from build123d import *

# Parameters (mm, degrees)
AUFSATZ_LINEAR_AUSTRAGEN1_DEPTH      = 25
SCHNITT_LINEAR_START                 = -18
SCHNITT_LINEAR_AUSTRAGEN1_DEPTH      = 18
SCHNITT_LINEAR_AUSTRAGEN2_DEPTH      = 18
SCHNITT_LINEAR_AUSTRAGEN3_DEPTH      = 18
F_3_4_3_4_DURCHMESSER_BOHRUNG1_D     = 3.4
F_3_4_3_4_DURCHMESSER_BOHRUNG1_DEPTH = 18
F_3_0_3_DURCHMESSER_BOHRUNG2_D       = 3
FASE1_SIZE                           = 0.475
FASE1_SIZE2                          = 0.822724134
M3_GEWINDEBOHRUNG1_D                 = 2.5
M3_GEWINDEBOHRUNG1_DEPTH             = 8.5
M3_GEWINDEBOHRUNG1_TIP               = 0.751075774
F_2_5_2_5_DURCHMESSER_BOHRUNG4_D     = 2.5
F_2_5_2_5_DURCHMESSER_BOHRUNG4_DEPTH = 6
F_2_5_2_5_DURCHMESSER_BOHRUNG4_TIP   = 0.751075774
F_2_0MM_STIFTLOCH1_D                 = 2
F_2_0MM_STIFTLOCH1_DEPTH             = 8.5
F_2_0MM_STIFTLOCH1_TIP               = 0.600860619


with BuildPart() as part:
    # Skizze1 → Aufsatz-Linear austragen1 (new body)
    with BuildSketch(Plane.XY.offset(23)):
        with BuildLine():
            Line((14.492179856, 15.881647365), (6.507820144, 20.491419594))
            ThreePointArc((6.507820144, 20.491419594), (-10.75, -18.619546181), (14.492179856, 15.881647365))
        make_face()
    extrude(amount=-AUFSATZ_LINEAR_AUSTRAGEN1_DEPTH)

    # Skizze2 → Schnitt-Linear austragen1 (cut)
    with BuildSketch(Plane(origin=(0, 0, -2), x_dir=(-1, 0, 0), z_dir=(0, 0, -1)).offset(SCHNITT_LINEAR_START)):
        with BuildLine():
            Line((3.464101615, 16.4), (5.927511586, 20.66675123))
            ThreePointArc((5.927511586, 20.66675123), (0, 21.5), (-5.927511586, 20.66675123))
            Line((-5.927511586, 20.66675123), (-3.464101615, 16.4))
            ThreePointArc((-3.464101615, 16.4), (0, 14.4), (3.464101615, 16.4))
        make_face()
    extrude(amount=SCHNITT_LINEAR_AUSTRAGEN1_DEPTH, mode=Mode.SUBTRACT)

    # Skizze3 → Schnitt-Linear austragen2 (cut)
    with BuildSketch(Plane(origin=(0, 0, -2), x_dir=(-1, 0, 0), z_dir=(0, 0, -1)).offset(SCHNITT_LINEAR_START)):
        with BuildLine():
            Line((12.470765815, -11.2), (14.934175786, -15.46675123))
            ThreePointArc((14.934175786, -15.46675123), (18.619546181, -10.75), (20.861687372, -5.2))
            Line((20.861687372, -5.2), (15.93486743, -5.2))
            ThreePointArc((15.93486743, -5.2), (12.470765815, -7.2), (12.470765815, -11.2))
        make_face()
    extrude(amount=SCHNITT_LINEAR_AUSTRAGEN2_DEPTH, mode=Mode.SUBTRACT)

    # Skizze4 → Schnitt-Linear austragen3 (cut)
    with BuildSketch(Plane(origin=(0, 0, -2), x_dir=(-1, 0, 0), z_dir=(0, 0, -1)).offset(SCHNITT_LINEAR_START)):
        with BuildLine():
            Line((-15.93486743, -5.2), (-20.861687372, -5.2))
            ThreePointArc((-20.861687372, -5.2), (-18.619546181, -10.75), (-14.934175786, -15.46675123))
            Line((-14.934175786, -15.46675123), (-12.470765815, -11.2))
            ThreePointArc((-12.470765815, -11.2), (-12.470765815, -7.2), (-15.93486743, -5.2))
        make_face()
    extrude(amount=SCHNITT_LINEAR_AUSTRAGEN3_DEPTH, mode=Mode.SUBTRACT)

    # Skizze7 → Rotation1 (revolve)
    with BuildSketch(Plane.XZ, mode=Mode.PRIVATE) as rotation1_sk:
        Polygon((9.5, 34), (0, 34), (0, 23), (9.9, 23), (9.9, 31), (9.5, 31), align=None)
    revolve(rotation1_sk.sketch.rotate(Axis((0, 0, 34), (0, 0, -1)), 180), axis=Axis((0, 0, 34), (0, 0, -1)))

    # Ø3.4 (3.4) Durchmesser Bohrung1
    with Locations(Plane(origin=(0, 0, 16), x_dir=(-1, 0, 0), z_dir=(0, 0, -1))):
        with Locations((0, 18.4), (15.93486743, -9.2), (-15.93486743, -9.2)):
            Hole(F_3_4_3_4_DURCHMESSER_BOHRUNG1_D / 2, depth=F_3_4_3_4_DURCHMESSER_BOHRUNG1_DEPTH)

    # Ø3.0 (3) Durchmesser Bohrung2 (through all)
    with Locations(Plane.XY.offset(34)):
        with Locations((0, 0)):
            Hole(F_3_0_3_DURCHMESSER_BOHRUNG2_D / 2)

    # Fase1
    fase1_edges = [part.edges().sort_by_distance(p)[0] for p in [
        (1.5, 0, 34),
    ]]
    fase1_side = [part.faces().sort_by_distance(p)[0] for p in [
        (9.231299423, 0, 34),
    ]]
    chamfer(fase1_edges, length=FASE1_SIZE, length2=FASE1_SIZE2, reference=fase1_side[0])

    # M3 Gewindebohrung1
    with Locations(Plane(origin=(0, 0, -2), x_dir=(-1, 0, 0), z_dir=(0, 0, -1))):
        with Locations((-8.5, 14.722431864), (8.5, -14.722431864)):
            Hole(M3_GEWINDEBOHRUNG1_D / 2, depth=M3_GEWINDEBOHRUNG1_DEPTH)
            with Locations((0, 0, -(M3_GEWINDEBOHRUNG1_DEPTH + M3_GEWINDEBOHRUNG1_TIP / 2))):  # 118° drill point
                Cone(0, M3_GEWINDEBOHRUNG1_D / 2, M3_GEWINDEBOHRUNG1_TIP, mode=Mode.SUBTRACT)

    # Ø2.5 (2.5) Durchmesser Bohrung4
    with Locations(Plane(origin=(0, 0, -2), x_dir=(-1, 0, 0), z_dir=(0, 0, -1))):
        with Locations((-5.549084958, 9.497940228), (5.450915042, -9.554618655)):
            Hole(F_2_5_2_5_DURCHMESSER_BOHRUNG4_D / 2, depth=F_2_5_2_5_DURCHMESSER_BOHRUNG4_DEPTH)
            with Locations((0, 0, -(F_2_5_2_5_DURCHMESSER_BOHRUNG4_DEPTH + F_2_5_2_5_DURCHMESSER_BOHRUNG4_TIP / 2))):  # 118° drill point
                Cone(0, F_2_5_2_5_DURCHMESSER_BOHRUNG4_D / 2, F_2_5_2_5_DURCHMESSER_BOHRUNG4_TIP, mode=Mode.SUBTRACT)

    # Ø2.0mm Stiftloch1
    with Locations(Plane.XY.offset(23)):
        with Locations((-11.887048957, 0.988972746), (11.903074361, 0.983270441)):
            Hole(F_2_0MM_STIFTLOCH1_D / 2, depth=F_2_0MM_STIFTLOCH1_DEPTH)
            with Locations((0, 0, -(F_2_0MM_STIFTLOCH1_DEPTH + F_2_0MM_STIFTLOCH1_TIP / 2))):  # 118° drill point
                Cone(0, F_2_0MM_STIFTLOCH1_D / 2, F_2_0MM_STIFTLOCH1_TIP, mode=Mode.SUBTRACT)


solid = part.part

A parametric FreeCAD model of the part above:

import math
import FreeCAD as App
import Part
import Sketcher

V = App.Vector
Q = App.Units.Quantity


def edges_at(feature, points):
    """Names of the edges that pass closest to the given points."""
    edges = feature.Shape.Edges
    near = lambda p: min(range(len(edges)), key=lambda i: edges[i].distToShape(Part.Vertex(*p))[0])
    return sorted({f"Edge{near(p) + 1}" for p in points})

doc = App.newDocument("Part")
body = doc.addObject("PartDesign::Body", "Body")

sketch1 = doc.addObject("Sketcher::SketchObject", "Sketch")
body.addObject(sketch1)
sketch1.AttachmentSupport = (doc.XY_Plane, [""])
sketch1.MapMode = "FlatFace"
sketch1.AttachmentOffset = App.Placement(V(0, 0, 23), App.Rotation())
sketch1.addGeometry([
    Part.LineSegment(V(14, 16, 0), V(7, 20, 0)),
    Part.ArcOfCircle(Part.Circle(V(0, 0, 0), V(0, 0, 1), 22), math.radians(72), math.radians(408)),
], False)
sketch1.addConstraint([
    Sketcher.Constraint("Coincident", 0, 1, 1, 2),
    Sketcher.Constraint("Coincident", 1, 1, 0, 2),
    Sketcher.Constraint("Coincident", 1, 3, -1, 1),
    Sketcher.Constraint("Radius", 1, Q("21.5 mm")),
    Sketcher.Constraint("Angle", 0, Q("150 deg")),
    Sketcher.Constraint("DistanceX", -1, 1, 0, 1, Q("14.49218 mm")),
])
pad1 = doc.addObject("PartDesign::Pad", "Pad")
body.addObject(pad1)
pad1.Profile = sketch1
pad1.Length = 25
pad1.Reversed = True

sketch2 = doc.addObject("Sketcher::SketchObject", "Sketch001")
body.addObject(sketch2)
sketch2.AttachmentSupport = (doc.XY_Plane, [""])
sketch2.MapMode = "FlatFace"
sketch2.AttachmentOffset = App.Placement(V(0, 0, 16), App.Rotation())
sketch2.addGeometry([
    Part.LineSegment(V(-3.5, 16.4, 0), V(-5.9, 20.7, 0)),
    Part.ArcOfCircle(Part.Circle(V(0, 0, 0), V(0, 0, 1), 21.5), math.radians(74), math.radians(106)),
    Part.LineSegment(V(5.9, 20.7, 0), V(3.5, 16.4, 0)),
    Part.ArcOfCircle(Part.Circle(V(0, 18.4, 0), V(0, 0, 1), 4), math.radians(-150), math.radians(-30)),
], False)
sketch2.addConstraint([
    Sketcher.Constraint("Coincident", 0, 2, 1, 2),
    Sketcher.Constraint("Coincident", 1, 1, 2, 1),
    Sketcher.Constraint("Tangent", 2, 2, 3, 2),
    Sketcher.Constraint("Tangent", 3, 1, 0, 1),
    Sketcher.Constraint("Coincident", 1, 3, -1, 1),
    Sketcher.Constraint("Symmetric", 2, 2, 3, 1, -2),
    Sketcher.Constraint("Radius", 3, Q("4 mm")),
    Sketcher.Constraint("Radius", 1, Q("21.5 mm")),
    Sketcher.Constraint("Angle", 0, Q("120 deg")),
    Sketcher.Constraint("DistanceY", -1, 1, 3, 3, Q("18.4 mm")),
])
pocket1 = doc.addObject("PartDesign::Pocket", "Pocket")
body.addObject(pocket1)
pocket1.Profile = sketch2
pocket1.Length = 18

sketch3 = doc.addObject("Sketcher::SketchObject", "Sketch002")
body.addObject(sketch3)
sketch3.AttachmentSupport = (doc.XY_Plane, [""])
sketch3.MapMode = "FlatFace"
sketch3.AttachmentOffset = App.Placement(V(0, 0, 16), App.Rotation())
sketch3.addGeometry([
    Part.LineSegment(V(-12.5, -11.2, 0), V(-14.9, -15.5, 0)),
    Part.ArcOfCircle(Part.Circle(V(0, 0, 0), V(0, 0, 1), 21.5), math.radians(-166), math.radians(-134)),
    Part.LineSegment(V(-20.9, -5.2, 0), V(-15.9, -5.2, 0)),
    Part.ArcOfCircle(Part.Circle(V(-15.9, -9.2, 0), V(0, 0, 1), 4), math.radians(-30), math.radians(90)),
], False)
sketch3.addConstraint([
    Sketcher.Constraint("Coincident", 0, 2, 1, 2),
    Sketcher.Constraint("Coincident", 1, 1, 2, 1),
    Sketcher.Constraint("Tangent", 2, 2, 3, 2),
    Sketcher.Constraint("Tangent", 3, 1, 0, 1),
    Sketcher.Constraint("Horizontal", 2),
    Sketcher.Constraint("Coincident", 1, 3, -1, 1),
    Sketcher.Constraint("Radius", 3, Q("4 mm")),
    Sketcher.Constraint("Radius", 1, Q("21.5 mm")),
    Sketcher.Constraint("Angle", 0, Q("-120 deg")),
    Sketcher.Constraint("DistanceY", 3, 3, -1, 1, Q("9.2 mm")),
    Sketcher.Constraint("DistanceX", 2, 1, 2, 2, Q("4.92682 mm")),
])
pocket2 = doc.addObject("PartDesign::Pocket", "Pocket001")
body.addObject(pocket2)
pocket2.Profile = sketch3
pocket2.Length = 18

sketch4 = doc.addObject("Sketcher::SketchObject", "Sketch003")
body.addObject(sketch4)
sketch4.AttachmentSupport = (doc.XY_Plane, [""])
sketch4.MapMode = "FlatFace"
sketch4.AttachmentOffset = App.Placement(V(0, 0, 16), App.Rotation())
sketch4.addGeometry([
    Part.LineSegment(V(15.9, -5.2, 0), V(20.9, -5.2, 0)),
    Part.ArcOfCircle(Part.Circle(V(0, 0, 0), V(0, 0, 1), 21.5), math.radians(-46), math.radians(-14)),
    Part.LineSegment(V(14.9, -15.5, 0), V(12.5, -11.2, 0)),
    Part.ArcOfCircle(Part.Circle(V(15.9, -9.2, 0), V(0, 0, 1), 4), math.radians(90), math.radians(210)),
], False)
sketch4.addConstraint([
    Sketcher.Constraint("Coincident", 0, 2, 1, 2),
    Sketcher.Constraint("Coincident", 1, 1, 2, 1),
    Sketcher.Constraint("Tangent", 2, 2, 3, 2),
    Sketcher.Constraint("Tangent", 3, 1, 0, 1),
    Sketcher.Constraint("Horizontal", 0),
    Sketcher.Constraint("Coincident", 1, 3, -1, 1),
    Sketcher.Constraint("Radius", 3, Q("4 mm")),
    Sketcher.Constraint("Radius", 1, Q("21.5 mm")),
    Sketcher.Constraint("Angle", 2, Q("120 deg")),
    Sketcher.Constraint("DistanceY", 3, 3, -1, 1, Q("9.2 mm")),
    Sketcher.Constraint("DistanceX", 0, 1, 0, 2, Q("4.92682 mm")),
])
pocket3 = doc.addObject("PartDesign::Pocket", "Pocket002")
body.addObject(pocket3)
pocket3.Profile = sketch4
pocket3.Length = 18

sketch5 = doc.addObject("Sketcher::SketchObject", "Sketch004")
body.addObject(sketch5)
sketch5.AttachmentSupport = (doc.XZ_Plane, [""])
sketch5.MapMode = "FlatFace"
sketch5.addGeometry([
    Part.LineSegment(V(9.5, 34, 0), V(0, 34, 0)),
    Part.LineSegment(V(0, 34, 0), V(0, 23, 0)),
    Part.LineSegment(V(0, 23, 0), V(9.9, 23, 0)),
    Part.LineSegment(V(9.9, 23, 0), V(9.9, 31, 0)),
    Part.LineSegment(V(9.9, 31, 0), V(9.5, 31, 0)),
    Part.LineSegment(V(9.5, 31, 0), V(9.5, 34, 0)),
], False)
sketch5.addConstraint([
    Sketcher.Constraint("Coincident", 0, 2, 1, 1),
    Sketcher.Constraint("Coincident", 1, 2, 2, 1),
    Sketcher.Constraint("Coincident", 2, 2, 3, 1),
    Sketcher.Constraint("Coincident", 3, 2, 4, 1),
    Sketcher.Constraint("Coincident", 4, 2, 5, 1),
    Sketcher.Constraint("Coincident", 5, 2, 0, 1),
    Sketcher.Constraint("Horizontal", 0),
    Sketcher.Constraint("Vertical", 1),
    Sketcher.Constraint("Horizontal", 2),
    Sketcher.Constraint("Vertical", 3),
    Sketcher.Constraint("Horizontal", 4),
    Sketcher.Constraint("Vertical", 5),
    Sketcher.Constraint("PointOnObject", 0, 2, -2),
    Sketcher.Constraint("DistanceY", 1, 2, 1, 1, Q("11 mm")),
    Sketcher.Constraint("DistanceY", 3, 1, 3, 2, Q("8 mm")),
    Sketcher.Constraint("DistanceX", 0, 2, 0, 1, Q("9.5 mm")),
    Sketcher.Constraint("DistanceX", 2, 1, 2, 2, Q("9.9 mm")),
    Sketcher.Constraint("DistanceY", -1, 1, 0, 2, Q("34 mm")),
])
revolution = doc.addObject("PartDesign::Revolution", "Revolution")
body.addObject(revolution)
revolution.Profile = sketch5
revolution.ReferenceAxis = (sketch5, ["V_Axis"])
revolution.Angle = 360

sketch6 = doc.addObject("Sketcher::SketchObject", "Sketch005")
body.addObject(sketch6)
sketch6.AttachmentSupport = (doc.XY_Plane, [""])
sketch6.MapMode = "FlatFace"
sketch6.AttachmentOffset = App.Placement(V(0, 0, 16), App.Rotation())
sketch6.addGeometry([
    Part.Circle(V(0, 18.4, 0), V(0, 0, 1), 1.7),
    Part.Circle(V(-15.9, -9.2, 0), V(0, 0, 1), 1.7),
    Part.Circle(V(15.9, -9.2, 0), V(0, 0, 1), 1.7),
], False)
sketch6.addConstraint([
    Sketcher.Constraint("Equal", 0, 1),
    Sketcher.Constraint("Equal", 1, 2),
    Sketcher.Constraint("Symmetric", 1, 3, 2, 3, -2),
    Sketcher.Constraint("PointOnObject", 0, 3, -2),
    Sketcher.Constraint("Diameter", 0, Q("3.4 mm")),
    Sketcher.Constraint("DistanceY", -1, 1, 0, 3, Q("18.4 mm")),
    Sketcher.Constraint("DistanceY", 1, 3, -1, 1, Q("9.2 mm")),
    Sketcher.Constraint("DistanceX", 1, 3, -1, 1, Q("15.934867 mm")),
])
doc.recompute()
hole = doc.addObject("PartDesign::Hole", "Hole")
body.addObject(hole)
hole.Profile = sketch6
hole.ThreadType = "None"
hole.Diameter = 3.4
hole.DepthType = "Dimension"
hole.Depth = 18
hole.DrillPoint = "Flat"
hole.Reversed = True

sketch7 = doc.addObject("Sketcher::SketchObject", "Sketch006")
body.addObject(sketch7)
sketch7.AttachmentSupport = (doc.XY_Plane, [""])
sketch7.MapMode = "FlatFace"
sketch7.AttachmentOffset = App.Placement(V(0, 0, 34), App.Rotation())
sketch7.addGeometry(Part.Circle(V(0, 0, 0), V(0, 0, 1), 1.5), False)
sketch7.addConstraint([
    Sketcher.Constraint("Coincident", 0, 3, -1, 1),
    Sketcher.Constraint("Diameter", 0, Q("3 mm")),
])
doc.recompute()
hole2 = doc.addObject("PartDesign::Hole", "Hole001")
body.addObject(hole2)
hole2.Profile = sketch7
hole2.ThreadType = "None"
hole2.Diameter = 3
hole2.DepthType = "ThroughAll"
doc.recompute()

chamfer = doc.addObject("PartDesign::Chamfer", "Chamfer")
body.addObject(chamfer)
chamfer.Base = (hole2, edges_at(hole2, [(1.5, 0, 34)]))
chamfer.ChamferType = "Two distances"
chamfer.Size = 0.475
chamfer.Size2 = 0.822724

sketch8 = doc.addObject("Sketcher::SketchObject", "Sketch007")
body.addObject(sketch8)
sketch8.AttachmentSupport = (doc.XY_Plane, [""])
sketch8.MapMode = "FlatFace"
sketch8.AttachmentOffset = App.Placement(V(0, 0, -2), App.Rotation())
sketch8.addGeometry([
    Part.Circle(V(8.5, 14.7, 0), V(0, 0, 1), 1.2),
    Part.Circle(V(-8.5, -14.7, 0), V(0, 0, 1), 1.2),
], False)
sketch8.addConstraint([
    Sketcher.Constraint("Equal", 0, 1),
    Sketcher.Constraint("Symmetric", 0, 3, 1, 3, -1, 1),
    Sketcher.Constraint("Diameter", 0, Q("2.5 mm")),
    Sketcher.Constraint("DistanceX", 1, 3, 0, 3, Q("17 mm")),
    Sketcher.Constraint("DistanceY", -1, 1, 0, 3, Q("14.722432 mm")),
])
doc.recompute()
hole3 = doc.addObject("PartDesign::Hole", "Hole002")
body.addObject(hole3)
hole3.Profile = sketch8
hole3.ThreadType = "None"
hole3.Diameter = 2.5
hole3.DepthType = "Dimension"
hole3.Depth = 8.5
hole3.DrillPoint = "Angled"
hole3.DrillPointAngle = 118
hole3.Reversed = True

sketch9 = doc.addObject("Sketcher::SketchObject", "Sketch008")
body.addObject(sketch9)
sketch9.AttachmentSupport = (doc.XY_Plane, [""])
sketch9.MapMode = "FlatFace"
sketch9.AttachmentOffset = App.Placement(V(0, 0, -2), App.Rotation())
sketch9.addGeometry([
    Part.Circle(V(5.5, 9.5, 0), V(0, 0, 1), 1.2),
    Part.Circle(V(-5.5, -9.6, 0), V(0, 0, 1), 1.2),
], False)
sketch9.addConstraint([
    Sketcher.Constraint("Equal", 0, 1),
    Sketcher.Constraint("Diameter", 0, Q("2.5 mm")),
    Sketcher.Constraint("DistanceX", 1, 3, 0, 3, Q("11 mm")),
    Sketcher.Constraint("DistanceY", -1, 1, 0, 3, Q("9.49794 mm")),
    Sketcher.Constraint("DistanceY", 1, 3, -1, 1, Q("9.554619 mm")),
    Sketcher.Constraint("DistanceX", -1, 1, 0, 3, Q("5.549085 mm")),
])
doc.recompute()
hole4 = doc.addObject("PartDesign::Hole", "Hole003")
body.addObject(hole4)
hole4.Profile = sketch9
hole4.ThreadType = "None"
hole4.Diameter = 2.5
hole4.DepthType = "Dimension"
hole4.Depth = 6
hole4.DrillPoint = "Angled"
hole4.DrillPointAngle = 118
hole4.Reversed = True

sketch10 = doc.addObject("Sketcher::SketchObject", "Sketch009")
body.addObject(sketch10)
sketch10.AttachmentSupport = (doc.XY_Plane, [""])
sketch10.MapMode = "FlatFace"
sketch10.AttachmentOffset = App.Placement(V(0, 0, 23), App.Rotation())
sketch10.addGeometry([
    Part.Circle(V(-11.9, 1, 0), V(0, 0, 1), 1),
    Part.Circle(V(11.9, 1, 0), V(0, 0, 1), 1),
], False)
sketch10.addConstraint([
    Sketcher.Constraint("Equal", 0, 1),
    Sketcher.Constraint("Diameter", 0, Q("2 mm")),
    Sketcher.Constraint("DistanceX", 0, 3, -1, 1, Q("11.887049 mm")),
    Sketcher.Constraint("DistanceY", -1, 1, 1, 3, Q("0.98327 mm")),
    Sketcher.Constraint("DistanceY", -1, 1, 0, 3, Q("0.988973 mm")),
    Sketcher.Constraint("DistanceX", -1, 1, 1, 3, Q("11.903074 mm")),
])
doc.recompute()
hole5 = doc.addObject("PartDesign::Hole", "Hole004")
body.addObject(hole5)
hole5.Profile = sketch10
hole5.ThreadType = "None"
hole5.Diameter = 2
hole5.DepthType = "Dimension"
hole5.Depth = 8.5
hole5.DrillPoint = "Angled"
hole5.DrillPointAngle = 118

doc.recompute()
